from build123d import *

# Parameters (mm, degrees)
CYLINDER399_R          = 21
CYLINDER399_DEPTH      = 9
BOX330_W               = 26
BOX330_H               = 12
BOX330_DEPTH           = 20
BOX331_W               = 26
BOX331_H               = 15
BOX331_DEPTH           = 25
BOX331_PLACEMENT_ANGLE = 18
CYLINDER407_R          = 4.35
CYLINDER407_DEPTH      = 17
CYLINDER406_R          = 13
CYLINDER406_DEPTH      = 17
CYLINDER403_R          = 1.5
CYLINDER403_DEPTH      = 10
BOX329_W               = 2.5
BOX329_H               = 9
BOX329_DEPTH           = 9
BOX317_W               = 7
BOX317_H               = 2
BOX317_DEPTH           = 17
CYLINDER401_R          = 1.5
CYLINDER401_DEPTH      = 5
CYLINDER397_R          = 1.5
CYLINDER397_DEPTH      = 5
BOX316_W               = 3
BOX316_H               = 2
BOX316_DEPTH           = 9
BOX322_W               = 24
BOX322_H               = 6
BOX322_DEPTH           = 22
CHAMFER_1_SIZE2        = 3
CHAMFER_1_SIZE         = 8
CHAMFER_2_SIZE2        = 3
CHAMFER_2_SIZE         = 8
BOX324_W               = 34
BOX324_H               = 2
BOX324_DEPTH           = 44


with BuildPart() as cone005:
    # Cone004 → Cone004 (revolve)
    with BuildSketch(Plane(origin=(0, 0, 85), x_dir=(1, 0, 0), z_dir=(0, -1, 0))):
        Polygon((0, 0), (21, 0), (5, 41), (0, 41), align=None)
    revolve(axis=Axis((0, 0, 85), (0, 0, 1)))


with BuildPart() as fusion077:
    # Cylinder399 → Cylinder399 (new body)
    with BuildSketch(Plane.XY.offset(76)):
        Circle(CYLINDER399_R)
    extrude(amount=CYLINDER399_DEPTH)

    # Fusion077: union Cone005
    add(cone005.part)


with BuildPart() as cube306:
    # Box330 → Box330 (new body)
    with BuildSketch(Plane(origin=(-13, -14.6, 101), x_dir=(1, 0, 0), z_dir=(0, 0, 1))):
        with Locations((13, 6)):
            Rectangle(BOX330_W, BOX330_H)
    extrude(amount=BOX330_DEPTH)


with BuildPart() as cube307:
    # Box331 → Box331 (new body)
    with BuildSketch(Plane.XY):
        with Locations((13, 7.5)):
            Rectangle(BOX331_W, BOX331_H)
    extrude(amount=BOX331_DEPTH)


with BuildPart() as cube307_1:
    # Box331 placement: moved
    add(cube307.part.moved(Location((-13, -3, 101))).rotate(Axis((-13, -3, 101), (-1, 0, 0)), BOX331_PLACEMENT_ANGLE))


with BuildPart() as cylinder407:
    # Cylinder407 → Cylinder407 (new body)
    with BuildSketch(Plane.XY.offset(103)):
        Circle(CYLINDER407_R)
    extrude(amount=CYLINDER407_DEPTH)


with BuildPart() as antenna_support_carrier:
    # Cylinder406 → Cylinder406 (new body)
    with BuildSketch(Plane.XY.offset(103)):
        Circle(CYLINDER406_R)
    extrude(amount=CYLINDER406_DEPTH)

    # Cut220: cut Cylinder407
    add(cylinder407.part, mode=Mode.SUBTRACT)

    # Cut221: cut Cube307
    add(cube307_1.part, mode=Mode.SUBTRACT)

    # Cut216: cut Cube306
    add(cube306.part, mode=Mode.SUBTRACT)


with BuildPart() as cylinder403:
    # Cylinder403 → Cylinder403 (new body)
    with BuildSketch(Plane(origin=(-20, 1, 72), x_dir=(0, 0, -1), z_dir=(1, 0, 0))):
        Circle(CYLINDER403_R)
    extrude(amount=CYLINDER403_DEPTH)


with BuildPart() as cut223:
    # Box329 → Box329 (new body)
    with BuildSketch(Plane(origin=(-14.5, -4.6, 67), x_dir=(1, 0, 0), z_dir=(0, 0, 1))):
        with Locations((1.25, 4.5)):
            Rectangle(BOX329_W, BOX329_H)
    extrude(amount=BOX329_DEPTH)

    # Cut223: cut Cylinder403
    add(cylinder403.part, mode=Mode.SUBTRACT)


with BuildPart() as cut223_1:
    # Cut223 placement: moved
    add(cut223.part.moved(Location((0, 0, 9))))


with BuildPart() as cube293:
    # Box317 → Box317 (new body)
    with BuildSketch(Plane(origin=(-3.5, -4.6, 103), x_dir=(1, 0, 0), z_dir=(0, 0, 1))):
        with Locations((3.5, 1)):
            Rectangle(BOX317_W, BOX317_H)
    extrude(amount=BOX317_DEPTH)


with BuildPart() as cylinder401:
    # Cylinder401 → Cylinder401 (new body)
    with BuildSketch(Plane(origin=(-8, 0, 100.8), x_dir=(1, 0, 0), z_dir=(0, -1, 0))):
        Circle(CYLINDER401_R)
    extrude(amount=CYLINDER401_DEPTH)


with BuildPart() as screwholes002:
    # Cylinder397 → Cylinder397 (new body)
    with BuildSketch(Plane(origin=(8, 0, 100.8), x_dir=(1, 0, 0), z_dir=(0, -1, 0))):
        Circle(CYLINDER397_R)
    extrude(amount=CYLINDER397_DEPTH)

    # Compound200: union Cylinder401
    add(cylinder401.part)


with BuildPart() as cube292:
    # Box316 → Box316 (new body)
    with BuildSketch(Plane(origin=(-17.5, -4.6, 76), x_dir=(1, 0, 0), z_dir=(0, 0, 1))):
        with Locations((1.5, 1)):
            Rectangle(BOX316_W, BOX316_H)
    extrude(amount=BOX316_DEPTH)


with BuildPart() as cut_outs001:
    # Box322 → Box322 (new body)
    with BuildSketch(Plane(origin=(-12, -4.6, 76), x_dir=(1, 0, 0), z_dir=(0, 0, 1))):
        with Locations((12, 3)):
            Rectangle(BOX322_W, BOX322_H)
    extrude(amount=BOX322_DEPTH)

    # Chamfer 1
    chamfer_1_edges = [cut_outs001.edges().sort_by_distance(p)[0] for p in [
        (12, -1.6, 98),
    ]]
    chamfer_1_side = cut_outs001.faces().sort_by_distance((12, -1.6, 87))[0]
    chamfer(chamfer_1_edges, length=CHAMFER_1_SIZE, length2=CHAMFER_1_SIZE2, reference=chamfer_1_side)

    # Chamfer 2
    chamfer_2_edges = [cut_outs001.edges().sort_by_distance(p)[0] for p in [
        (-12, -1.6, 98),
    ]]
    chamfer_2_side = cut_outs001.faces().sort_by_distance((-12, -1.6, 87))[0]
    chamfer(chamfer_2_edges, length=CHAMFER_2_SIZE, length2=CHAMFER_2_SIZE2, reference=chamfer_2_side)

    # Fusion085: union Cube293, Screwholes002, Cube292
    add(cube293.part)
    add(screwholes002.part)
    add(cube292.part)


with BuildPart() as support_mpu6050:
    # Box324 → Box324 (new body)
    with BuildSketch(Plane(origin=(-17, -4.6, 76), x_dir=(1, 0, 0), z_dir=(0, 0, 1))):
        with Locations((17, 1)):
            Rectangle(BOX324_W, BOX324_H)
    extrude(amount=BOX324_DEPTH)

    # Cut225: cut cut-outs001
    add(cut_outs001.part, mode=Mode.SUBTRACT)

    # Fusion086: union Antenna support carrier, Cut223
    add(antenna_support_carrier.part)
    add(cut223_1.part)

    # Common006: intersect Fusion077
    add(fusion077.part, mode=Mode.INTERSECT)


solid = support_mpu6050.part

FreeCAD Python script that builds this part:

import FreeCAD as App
import Part
import Sketcher


def edges_at(feature, points):
    """Names of the edges that pass closest to the given points."""
    edges = feature.Shape.Edges
    near = lambda p: min(range(len(edges)), key=lambda i: edges[i].distToShape(Part.Vertex(*p))[0])
    return sorted({f"Edge{near(p) + 1}" for p in points})


def add_polygon(sketch, points):
    """Adds a closed chain of lines whose ends are joined by coincident constraints."""
    first, n = sketch.GeometryCount, len(points)
    for a, b in zip(points, points[1:] + points[:1]):
        sketch.addGeometry(Part.LineSegment(App.Vector(*a, 0), App.Vector(*b, 0)), False)
    for i in range(n):
        sketch.addConstraint(Sketcher.Constraint("Coincident", first + i, 2, first + (i + 1) % n, 1))

doc = App.newDocument("Part")
body = doc.addObject("PartDesign::Body", "Body")

sketch1 = doc.addObject("Sketcher::SketchObject", "Sketch")
body.addObject(sketch1)
sketch1.AttachmentSupport = (doc.XZ_Plane, [""])
sketch1.MapMode = "FlatFace"
add_polygon(sketch1, [(0, 85), (21, 85), (5, 126), (0, 126)])
sketch1.addConstraint(Sketcher.Constraint("Horizontal", 0))
sketch1.addConstraint(Sketcher.Constraint("Horizontal", 2))
sketch1.addConstraint(Sketcher.Constraint("Vertical", 3))
sketch1.addConstraint(Sketcher.Constraint("PointOnObject", 2, 2, -2))
sketch1.addConstraint(Sketcher.Constraint("DistanceX", 0, 1, 0, 2, 21.0))
sketch1.addConstraint(Sketcher.Constraint("DistanceX", 2, 2, 2, 1, 5.0))
sketch1.addConstraint(Sketcher.Constraint("DistanceY", 3, 2, 3, 1, 41.0))
sketch1.addConstraint(Sketcher.Constraint("DistanceY", -1, 1, 0, 2, 85.0))
revolution = doc.addObject("PartDesign::Revolution", "Revolution")
body.addObject(revolution)
revolution.Profile = sketch1
revolution.ReferenceAxis = (sketch1, ["V_Axis"])
revolution.Angle = 360
body2 = doc.addObject("PartDesign::Body", "Body001")

sketch2 = doc.addObject("Sketcher::SketchObject", "Sketch001")
body2.addObject(sketch2)
sketch2.AttachmentSupport = (doc.getObject("XY_Plane001"), [""])
sketch2.MapMode = "FlatFace"
sketch2.AttachmentOffset = App.Placement(App.Vector(0, 0, 76), App.Rotation())
sketch2.addGeometry(Part.Circle(App.Vector(0, 0, 0), App.Vector(0, 0, 1), 21), False)
sketch2.addConstraint(Sketcher.Constraint("Coincident", 0, 3, -1, 1))
sketch2.addConstraint(Sketcher.Constraint("Diameter", 0, 42.0))
pad1 = doc.addObject("PartDesign::Pad", "Pad")
body2.addObject(pad1)
pad1.Profile = sketch2
pad1.Length = 9
doc.recompute()

boolean = doc.addObject("PartDesign::Boolean", "Boolean")
body2.addObject(boolean)
boolean.Type = "Fuse"
boolean.addObjects([body])
body3 = doc.addObject("PartDesign::Body", "Body002")

sketch3 = doc.addObject("Sketcher::SketchObject", "Sketch002")
body3.addObject(sketch3)
sketch3.AttachmentSupport = (doc.getObject("XY_Plane002"), [""])
sketch3.MapMode = "FlatFace"
sketch3.AttachmentOffset = App.Placement(App.Vector(0, 0, 101), App.Rotation())
add_polygon(sketch3, [(-13, -3), (-13, -15), (13, -15), (13, -3)])
sketch3.addConstraint(Sketcher.Constraint("Vertical", 0))
sketch3.addConstraint(Sketcher.Constraint("Horizontal", 1))
sketch3.addConstraint(Sketcher.Constraint("Vertical", 2))
sketch3.addConstraint(Sketcher.Constraint("Horizontal", 3))
sketch3.addConstraint(Sketcher.Constraint("DistanceX", 1, 1, 1, 2, 26.0))
sketch3.addConstraint(Sketcher.Constraint("DistanceY", 0, 2, 0, 1, 12.0))
sketch3.addConstraint(Sketcher.Constraint("DistanceX", 0, 2, -1, 1, 13.0))
sketch3.addConstraint(Sketcher.Constraint("DistanceY", 0, 2, -1, 1, 14.6))
pad2 = doc.addObject("PartDesign::Pad", "Pad001")
body3.addObject(pad2)
pad2.Profile = sketch3
pad2.Length = 20
body4 = doc.addObject("PartDesign::Body", "Body003")

sketch4 = doc.addObject("Sketcher::SketchObject", "Sketch003")
body4.addObject(sketch4)
sketch4.AttachmentSupport = (doc.getObject("XY_Plane003"), [""])
sketch4.MapMode = "FlatFace"
add_polygon(sketch4, [(0, 15), (0, 0), (26, 0), (26, 15)])
sketch4.addConstraint(Sketcher.Constraint("Vertical", 0))
sketch4.addConstraint(Sketcher.Constraint("Horizontal", 1))
sketch4.addConstraint(Sketcher.Constraint("Vertical", 2))
sketch4.addConstraint(Sketcher.Constraint("Horizontal", 3))
sketch4.addConstraint(Sketcher.Constraint("Coincident", 0, 2, -1, 1))
sketch4.addConstraint(Sketcher.Constraint("DistanceX", 1, 1, 1, 2, 26.0))
sketch4.addConstraint(Sketcher.Constraint("DistanceY", 0, 2, 0, 1, 15.0))
pad3 = doc.addObject("PartDesign::Pad", "Pad002")
body4.addObject(pad3)
pad3.Profile = sketch4
pad3.Length = 25
body5 = doc.addObject("PartDesign::Body", "Body004")
doc.recompute()

body4.Placement = App.Placement(App.Vector(-13, -3, 101), App.Rotation(App.Vector(-1, 0, 0), 18))
boolean2 = doc.addObject("PartDesign::Boolean", "Boolean001")
body5.addObject(boolean2)
boolean2.Type = "Fuse"
boolean2.addObjects([body4])
body6 = doc.addObject("PartDesign::Body", "Body005")

sketch5 = doc.addObject("Sketcher::SketchObject", "Sketch004")
body6.addObject(sketch5)
sketch5.AttachmentSupport = (doc.getObject("XY_Plane005"), [""])
sketch5.MapMode = "FlatFace"
sketch5.AttachmentOffset = App.Placement(App.Vector(0, 0, 103), App.Rotation())
sketch5.addGeometry(Part.Circle(App.Vector(0, 0, 0), App.Vector(0, 0, 1), 4.3), False)
sketch5.addConstraint(Sketcher.Constraint("Coincident", 0, 3, -1, 1))
sketch5.addConstraint(Sketcher.Constraint("Diameter", 0, 8.7))
pad4 = doc.addObject("PartDesign::Pad", "Pad003")
body6.addObject(pad4)
pad4.Profile = sketch5
pad4.Length = 17
body7 = doc.addObject("PartDesign::Body", "Body006")
body7.AllowCompound = True

sketch6 = doc.addObject("Sketcher::SketchObject", "Sketch005")
body7.addObject(sketch6)
sketch6.AttachmentSupport = (doc.getObject("XY_Plane006"), [""])
sketch6.MapMode = "FlatFace"
sketch6.AttachmentOffset = App.Placement(App.Vector(0, 0, 103), App.Rotation())
sketch6.addGeometry(Part.Circle(App.Vector(0, 0, 0), App.Vector(0, 0, 1), 13), False)
sketch6.addConstraint(Sketcher.Constraint("Coincident", 0, 3, -1, 1))
sketch6.addConstraint(Sketcher.Constraint("Diameter", 0, 26.0))
pad5 = doc.addObject("PartDesign::Pad", "Pad004")
body7.addObject(pad5)
pad5.Profile = sketch6
pad5.Length = 17
doc.recompute()

boolean3 = doc.addObject("PartDesign::Boolean", "Boolean002")
body7.addObject(boolean3)
boolean3.Type = "Cut"
boolean3.addObjects([body6])
doc.recompute()

boolean4 = doc.addObject("PartDesign::Boolean", "Boolean003")
body7.addObject(boolean4)
boolean4.Type = "Cut"
boolean4.addObjects([body5])
doc.recompute()

boolean5 = doc.addObject("PartDesign::Boolean", "Boolean004")
body7.addObject(boolean5)
boolean5.Type = "Cut"
boolean5.addObjects([body3])
body8 = doc.addObject("PartDesign::Body", "Body007")

sketch7 = doc.addObject("Sketcher::SketchObject", "Sketch006")
body8.addObject(sketch7)
sketch7.AttachmentSupport = (doc.getObject("YZ_Plane007"), [""])
sketch7.MapMode = "FlatFace"
sketch7.AttachmentOffset = App.Placement(App.Vector(0, 0, -20), App.Rotation())
sketch7.addGeometry(Part.Circle(App.Vector(1, 72, 0), App.Vector(0, 0, 1), 1.5), False)
sketch7.addConstraint(Sketcher.Constraint("Diameter", 0, 3.0))
sketch7.addConstraint(Sketcher.Constraint("DistanceX", -1, 1, 0, 3, 1.0))
sketch7.addConstraint(Sketcher.Constraint("DistanceY", -1, 1, 0, 3, 72.0))
pad6 = doc.addObject("PartDesign::Pad", "Pad005")
body8.addObject(pad6)
pad6.Profile = sketch7
pad6.Length = 10
body9 = doc.addObject("PartDesign::Body", "Body008")

sketch8 = doc.addObject("Sketcher::SketchObject", "Sketch007")
body9.addObject(sketch8)
sketch8.AttachmentSupport = (doc.getObject("XY_Plane008"), [""])
sketch8.MapMode = "FlatFace"
sketch8.AttachmentOffset = App.Placement(App.Vector(0, 0, 67), App.Rotation())
add_polygon(sketch8, [(-14.5, 4.4), (-14.5, -4.6), (-12, -4.6), (-12, 4.4)])
sketch8.addConstraint(Sketcher.Constraint("Vertical", 0))
sketch8.addConstraint(Sketcher.Constraint("Horizontal", 1))
sketch8.addConstraint(Sketcher.Constraint("Vertical", 2))
sketch8.addConstraint(Sketcher.Constraint("Horizontal", 3))
sketch8.addConstraint(Sketcher.Constraint("DistanceY", 0, 2, 0, 1, 9.0))
sketch8.addConstraint(Sketcher.Constraint("DistanceX", 1, 1, 1, 2, 2.5))
sketch8.addConstraint(Sketcher.Constraint("DistanceX", 1, 2, -1, 1, 12.0))
sketch8.addConstraint(Sketcher.Constraint("DistanceY", 0, 2, -1, 1, 4.6))
pad7 = doc.addObject("PartDesign::Pad", "Pad006")
body9.addObject(pad7)
pad7.Profile = sketch8
pad7.Length = 9
doc.recompute()

boolean6 = doc.addObject("PartDesign::Boolean", "Boolean005")
body9.addObject(boolean6)
boolean6.Type = "Cut"
boolean6.addObjects([body8])
body10 = doc.addObject("PartDesign::Body", "Body009")
doc.recompute()

body9.Placement = App.Placement(App.Vector(0, 0, 9), App.Rotation(App.Vector(0, 0, 1), 0))
boolean7 = doc.addObject("PartDesign::Boolean", "Boolean006")
body10.addObject(boolean7)
boolean7.Type = "Fuse"
boolean7.addObjects([body9])
body11 = doc.addObject("PartDesign::Body", "Body010")

sketch9 = doc.addObject("Sketcher::SketchObject", "Sketch008")
body11.addObject(sketch9)
sketch9.AttachmentSupport = (doc.getObject("XY_Plane010"), [""])
sketch9.MapMode = "FlatFace"
sketch9.AttachmentOffset = App.Placement(App.Vector(0, 0, 103), App.Rotation())
add_polygon(sketch9, [(-3.5, -2.6), (-3.5, -4.6), (3.5, -4.6), (3.5, -2.6)])
sketch9.addConstraint(Sketcher.Constraint("Vertical", 0))
sketch9.addConstraint(Sketcher.Constraint("Horizontal", 1))
sketch9.addConstraint(Sketcher.Constraint("Vertical", 2))
sketch9.addConstraint(Sketcher.Constraint("Horizontal", 3))
sketch9.addConstraint(Sketcher.Constraint("DistanceX", 1, 1, 1, 2, 7.0))
sketch9.addConstraint(Sketcher.Constraint("DistanceY", 0, 2, 0, 1, 2.0))
sketch9.addConstraint(Sketcher.Constraint("DistanceX", 0, 2, -1, 1, 3.5))
sketch9.addConstraint(Sketcher.Constraint("DistanceY", 0, 2, -1, 1, 4.6))
pad8 = doc.addObject("PartDesign::Pad", "Pad007")
body11.addObject(pad8)
pad8.Profile = sketch9
pad8.Length = 17
body12 = doc.addObject("PartDesign::Body", "Body011")

sketch10 = doc.addObject("Sketcher::SketchObject", "Sketch009")
body12.addObject(sketch10)
sketch10.AttachmentSupport = (doc.getObject("XZ_Plane011"), [""])
sketch10.MapMode = "FlatFace"
sketch10.addGeometry(Part.Circle(App.Vector(-8, 100.8, 0), App.Vector(0, 0, 1), 1.5), False)
sketch10.addConstraint(Sketcher.Constraint("Diameter", 0, 3.0))
sketch10.addConstraint(Sketcher.Constraint("DistanceX", 0, 3, -1, 1, 8.0))
sketch10.addConstraint(Sketcher.Constraint("DistanceY", -1, 1, 0, 3, 100.8))
pad9 = doc.addObject("PartDesign::Pad", "Pad008")
body12.addObject(pad9)
pad9.Profile = sketch10
pad9.Length = 5
body13 = doc.addObject("PartDesign::Body", "Body012")
body13.AllowCompound = True

sketch11 = doc.addObject("Sketcher::SketchObject", "Sketch010")
body13.addObject(sketch11)
sketch11.AttachmentSupport = (doc.getObject("XZ_Plane012"), [""])
sketch11.MapMode = "FlatFace"
sketch11.addGeometry(Part.Circle(App.Vector(8, 100.8, 0), App.Vector(0, 0, 1), 1.5), False)
sketch11.addConstraint(Sketcher.Constraint("Diameter", 0, 3.0))
sketch11.addConstraint(Sketcher.Constraint("DistanceX", -1, 1, 0, 3, 8.0))
sketch11.addConstraint(Sketcher.Constraint("DistanceY", -1, 1, 0, 3, 100.8))
pad10 = doc.addObject("PartDesign::Pad", "Pad009")
body13.addObject(pad10)
pad10.Profile = sketch11
pad10.Length = 5
doc.recompute()

boolean8 = doc.addObject("PartDesign::Boolean", "Boolean007")
body13.addObject(boolean8)
boolean8.Type = "Fuse"
boolean8.addObjects([body12])
body14 = doc.addObject("PartDesign::Body", "Body013")

sketch12 = doc.addObject("Sketcher::SketchObject", "Sketch011")
body14.addObject(sketch12)
sketch12.AttachmentSupport = (doc.getObject("XY_Plane013"), [""])
sketch12.MapMode = "FlatFace"
sketch12.AttachmentOffset = App.Placement(App.Vector(0, 0, 76), App.Rotation())
add_polygon(sketch12, [(-17.5, -2.6), (-17.5, -4.6), (-14.5, -4.6), (-14.5, -2.6)])
sketch12.addConstraint(Sketcher.Constraint("Vertical", 0))
sketch12.addConstraint(Sketcher.Constraint("Horizontal", 1))
sketch12.addConstraint(Sketcher.Constraint("Vertical", 2))
sketch12.addConstraint(Sketcher.Constraint("Horizontal", 3))
sketch12.addConstraint(Sketcher.Constraint("DistanceX", 1, 1, 1, 2, 3.0))
sketch12.addConstraint(Sketcher.Constraint("DistanceY", 0, 2, 0, 1, 2.0))
sketch12.addConstraint(Sketcher.Constraint("DistanceX", 0, 2, -1, 1, 17.5))
sketch12.addConstraint(Sketcher.Constraint("DistanceY", 0, 2, -1, 1, 4.6))
pad11 = doc.addObject("PartDesign::Pad", "Pad010")
body14.addObject(pad11)
pad11.Profile = sketch12
pad11.Length = 9
body15 = doc.addObject("PartDesign::Body", "Body014")
body15.AllowCompound = True

sketch13 = doc.addObject("Sketcher::SketchObject", "Sketch012")
body15.addObject(sketch13)
sketch13.AttachmentSupport = (doc.getObject("XY_Plane014"), [""])
sketch13.MapMode = "FlatFace"
sketch13.AttachmentOffset = App.Placement(App.Vector(0, 0, 76), App.Rotation())
add_polygon(sketch13, [(-12, 1), (-12, -5), (12, -5), (12, 1)])
sketch13.addConstraint(Sketcher.Constraint("Vertical", 0))
sketch13.addConstraint(Sketcher.Constraint("Horizontal", 1))
sketch13.addConstraint(Sketcher.Constraint("Vertical", 2))
sketch13.addConstraint(Sketcher.Constraint("Horizontal", 3))
sketch13.addConstraint(Sketcher.Constraint("DistanceX", 1, 1, 1, 2, 24.0))
sketch13.addConstraint(Sketcher.Constraint("DistanceY", 0, 2, 0, 1, 6.0))
sketch13.addConstraint(Sketcher.Constraint("DistanceX", 0, 2, -1, 1, 12.0))
sketch13.addConstraint(Sketcher.Constraint("DistanceY", 0, 2, -1, 1, 4.6))
pad12 = doc.addObject("PartDesign::Pad", "Pad011")
body15.addObject(pad12)
pad12.Profile = sketch13
pad12.Length = 22
doc.recompute()

chamfer = doc.addObject("PartDesign::Chamfer", "Chamfer")
body15.addObject(chamfer)
chamfer.Base = (pad12, edges_at(pad12, [(12, -1.6, 98)]))
chamfer.ChamferType = "Two distances"
chamfer.Size = 8
chamfer.Size2 = 3
doc.recompute()

chamfer2 = doc.addObject("PartDesign::Chamfer", "Chamfer001")
body15.addObject(chamfer2)
chamfer2.Base = (chamfer, edges_at(chamfer, [(-12, -1.6, 98)]))
chamfer2.ChamferType = "Two distances"
chamfer2.Size = 8
chamfer2.Size2 = 3
chamfer2.FlipDirection = True
doc.recompute()

boolean9 = doc.addObject("PartDesign::Boolean", "Boolean008")
body15.addObject(boolean9)
boolean9.Type = "Fuse"
boolean9.addObjects([body11])
doc.recompute()

boolean10 = doc.addObject("PartDesign::Boolean", "Boolean009")
body15.addObject(boolean10)
boolean10.Type = "Fuse"
boolean10.addObjects([body13])
doc.recompute()

boolean11 = doc.addObject("PartDesign::Boolean", "Boolean010")
body15.addObject(boolean11)
boolean11.Type = "Fuse"
boolean11.addObjects([body14])
body16 = doc.addObject("PartDesign::Body", "Body015")

sketch14 = doc.addObject("Sketcher::SketchObject", "Sketch013")
body16.addObject(sketch14)
sketch14.AttachmentSupport = (doc.getObject("XY_Plane015"), [""])
sketch14.MapMode = "FlatFace"
sketch14.AttachmentOffset = App.Placement(App.Vector(0, 0, 76), App.Rotation())
add_polygon(sketch14, [(-17, -2.6), (-17, -4.6), (17, -4.6), (17, -2.6)])
sketch14.addConstraint(Sketcher.Constraint("Vertical", 0))
sketch14.addConstraint(Sketcher.Constraint("Horizontal", 1))
sketch14.addConstraint(Sketcher.Constraint("Vertical", 2))
sketch14.addConstraint(Sketcher.Constraint("Horizontal", 3))
sketch14.addConstraint(Sketcher.Constraint("DistanceX", 1, 1, 1, 2, 34.0))
sketch14.addConstraint(Sketcher.Constraint("DistanceY", 0, 2, 0, 1, 2.0))
sketch14.addConstraint(Sketcher.Constraint("DistanceX", 0, 2, -1, 1, 17.0))
sketch14.addConstraint(Sketcher.Constraint("DistanceY", 0, 2, -1, 1, 4.6))
pad13 = doc.addObject("PartDesign::Pad", "Pad012")
body16.addObject(pad13)
pad13.Profile = sketch14
pad13.Length = 44
doc.recompute()

boolean12 = doc.addObject("PartDesign::Boolean", "Boolean011")
body16.addObject(boolean12)
boolean12.Type = "Cut"
boolean12.addObjects([body15])
doc.recompute()

boolean13 = doc.addObject("PartDesign::Boolean", "Boolean012")
body16.addObject(boolean13)
boolean13.Type = "Fuse"
boolean13.addObjects([body7])
doc.recompute()

boolean14 = doc.addObject("PartDesign::Boolean", "Boolean013")
body16.addObject(boolean14)
boolean14.Type = "Fuse"
boolean14.addObjects([body10])
doc.recompute()

boolean15 = doc.addObject("PartDesign::Boolean", "Boolean014")
body16.addObject(boolean15)
boolean15.Type = "Common"
boolean15.addObjects([body2])

doc.recompute()
